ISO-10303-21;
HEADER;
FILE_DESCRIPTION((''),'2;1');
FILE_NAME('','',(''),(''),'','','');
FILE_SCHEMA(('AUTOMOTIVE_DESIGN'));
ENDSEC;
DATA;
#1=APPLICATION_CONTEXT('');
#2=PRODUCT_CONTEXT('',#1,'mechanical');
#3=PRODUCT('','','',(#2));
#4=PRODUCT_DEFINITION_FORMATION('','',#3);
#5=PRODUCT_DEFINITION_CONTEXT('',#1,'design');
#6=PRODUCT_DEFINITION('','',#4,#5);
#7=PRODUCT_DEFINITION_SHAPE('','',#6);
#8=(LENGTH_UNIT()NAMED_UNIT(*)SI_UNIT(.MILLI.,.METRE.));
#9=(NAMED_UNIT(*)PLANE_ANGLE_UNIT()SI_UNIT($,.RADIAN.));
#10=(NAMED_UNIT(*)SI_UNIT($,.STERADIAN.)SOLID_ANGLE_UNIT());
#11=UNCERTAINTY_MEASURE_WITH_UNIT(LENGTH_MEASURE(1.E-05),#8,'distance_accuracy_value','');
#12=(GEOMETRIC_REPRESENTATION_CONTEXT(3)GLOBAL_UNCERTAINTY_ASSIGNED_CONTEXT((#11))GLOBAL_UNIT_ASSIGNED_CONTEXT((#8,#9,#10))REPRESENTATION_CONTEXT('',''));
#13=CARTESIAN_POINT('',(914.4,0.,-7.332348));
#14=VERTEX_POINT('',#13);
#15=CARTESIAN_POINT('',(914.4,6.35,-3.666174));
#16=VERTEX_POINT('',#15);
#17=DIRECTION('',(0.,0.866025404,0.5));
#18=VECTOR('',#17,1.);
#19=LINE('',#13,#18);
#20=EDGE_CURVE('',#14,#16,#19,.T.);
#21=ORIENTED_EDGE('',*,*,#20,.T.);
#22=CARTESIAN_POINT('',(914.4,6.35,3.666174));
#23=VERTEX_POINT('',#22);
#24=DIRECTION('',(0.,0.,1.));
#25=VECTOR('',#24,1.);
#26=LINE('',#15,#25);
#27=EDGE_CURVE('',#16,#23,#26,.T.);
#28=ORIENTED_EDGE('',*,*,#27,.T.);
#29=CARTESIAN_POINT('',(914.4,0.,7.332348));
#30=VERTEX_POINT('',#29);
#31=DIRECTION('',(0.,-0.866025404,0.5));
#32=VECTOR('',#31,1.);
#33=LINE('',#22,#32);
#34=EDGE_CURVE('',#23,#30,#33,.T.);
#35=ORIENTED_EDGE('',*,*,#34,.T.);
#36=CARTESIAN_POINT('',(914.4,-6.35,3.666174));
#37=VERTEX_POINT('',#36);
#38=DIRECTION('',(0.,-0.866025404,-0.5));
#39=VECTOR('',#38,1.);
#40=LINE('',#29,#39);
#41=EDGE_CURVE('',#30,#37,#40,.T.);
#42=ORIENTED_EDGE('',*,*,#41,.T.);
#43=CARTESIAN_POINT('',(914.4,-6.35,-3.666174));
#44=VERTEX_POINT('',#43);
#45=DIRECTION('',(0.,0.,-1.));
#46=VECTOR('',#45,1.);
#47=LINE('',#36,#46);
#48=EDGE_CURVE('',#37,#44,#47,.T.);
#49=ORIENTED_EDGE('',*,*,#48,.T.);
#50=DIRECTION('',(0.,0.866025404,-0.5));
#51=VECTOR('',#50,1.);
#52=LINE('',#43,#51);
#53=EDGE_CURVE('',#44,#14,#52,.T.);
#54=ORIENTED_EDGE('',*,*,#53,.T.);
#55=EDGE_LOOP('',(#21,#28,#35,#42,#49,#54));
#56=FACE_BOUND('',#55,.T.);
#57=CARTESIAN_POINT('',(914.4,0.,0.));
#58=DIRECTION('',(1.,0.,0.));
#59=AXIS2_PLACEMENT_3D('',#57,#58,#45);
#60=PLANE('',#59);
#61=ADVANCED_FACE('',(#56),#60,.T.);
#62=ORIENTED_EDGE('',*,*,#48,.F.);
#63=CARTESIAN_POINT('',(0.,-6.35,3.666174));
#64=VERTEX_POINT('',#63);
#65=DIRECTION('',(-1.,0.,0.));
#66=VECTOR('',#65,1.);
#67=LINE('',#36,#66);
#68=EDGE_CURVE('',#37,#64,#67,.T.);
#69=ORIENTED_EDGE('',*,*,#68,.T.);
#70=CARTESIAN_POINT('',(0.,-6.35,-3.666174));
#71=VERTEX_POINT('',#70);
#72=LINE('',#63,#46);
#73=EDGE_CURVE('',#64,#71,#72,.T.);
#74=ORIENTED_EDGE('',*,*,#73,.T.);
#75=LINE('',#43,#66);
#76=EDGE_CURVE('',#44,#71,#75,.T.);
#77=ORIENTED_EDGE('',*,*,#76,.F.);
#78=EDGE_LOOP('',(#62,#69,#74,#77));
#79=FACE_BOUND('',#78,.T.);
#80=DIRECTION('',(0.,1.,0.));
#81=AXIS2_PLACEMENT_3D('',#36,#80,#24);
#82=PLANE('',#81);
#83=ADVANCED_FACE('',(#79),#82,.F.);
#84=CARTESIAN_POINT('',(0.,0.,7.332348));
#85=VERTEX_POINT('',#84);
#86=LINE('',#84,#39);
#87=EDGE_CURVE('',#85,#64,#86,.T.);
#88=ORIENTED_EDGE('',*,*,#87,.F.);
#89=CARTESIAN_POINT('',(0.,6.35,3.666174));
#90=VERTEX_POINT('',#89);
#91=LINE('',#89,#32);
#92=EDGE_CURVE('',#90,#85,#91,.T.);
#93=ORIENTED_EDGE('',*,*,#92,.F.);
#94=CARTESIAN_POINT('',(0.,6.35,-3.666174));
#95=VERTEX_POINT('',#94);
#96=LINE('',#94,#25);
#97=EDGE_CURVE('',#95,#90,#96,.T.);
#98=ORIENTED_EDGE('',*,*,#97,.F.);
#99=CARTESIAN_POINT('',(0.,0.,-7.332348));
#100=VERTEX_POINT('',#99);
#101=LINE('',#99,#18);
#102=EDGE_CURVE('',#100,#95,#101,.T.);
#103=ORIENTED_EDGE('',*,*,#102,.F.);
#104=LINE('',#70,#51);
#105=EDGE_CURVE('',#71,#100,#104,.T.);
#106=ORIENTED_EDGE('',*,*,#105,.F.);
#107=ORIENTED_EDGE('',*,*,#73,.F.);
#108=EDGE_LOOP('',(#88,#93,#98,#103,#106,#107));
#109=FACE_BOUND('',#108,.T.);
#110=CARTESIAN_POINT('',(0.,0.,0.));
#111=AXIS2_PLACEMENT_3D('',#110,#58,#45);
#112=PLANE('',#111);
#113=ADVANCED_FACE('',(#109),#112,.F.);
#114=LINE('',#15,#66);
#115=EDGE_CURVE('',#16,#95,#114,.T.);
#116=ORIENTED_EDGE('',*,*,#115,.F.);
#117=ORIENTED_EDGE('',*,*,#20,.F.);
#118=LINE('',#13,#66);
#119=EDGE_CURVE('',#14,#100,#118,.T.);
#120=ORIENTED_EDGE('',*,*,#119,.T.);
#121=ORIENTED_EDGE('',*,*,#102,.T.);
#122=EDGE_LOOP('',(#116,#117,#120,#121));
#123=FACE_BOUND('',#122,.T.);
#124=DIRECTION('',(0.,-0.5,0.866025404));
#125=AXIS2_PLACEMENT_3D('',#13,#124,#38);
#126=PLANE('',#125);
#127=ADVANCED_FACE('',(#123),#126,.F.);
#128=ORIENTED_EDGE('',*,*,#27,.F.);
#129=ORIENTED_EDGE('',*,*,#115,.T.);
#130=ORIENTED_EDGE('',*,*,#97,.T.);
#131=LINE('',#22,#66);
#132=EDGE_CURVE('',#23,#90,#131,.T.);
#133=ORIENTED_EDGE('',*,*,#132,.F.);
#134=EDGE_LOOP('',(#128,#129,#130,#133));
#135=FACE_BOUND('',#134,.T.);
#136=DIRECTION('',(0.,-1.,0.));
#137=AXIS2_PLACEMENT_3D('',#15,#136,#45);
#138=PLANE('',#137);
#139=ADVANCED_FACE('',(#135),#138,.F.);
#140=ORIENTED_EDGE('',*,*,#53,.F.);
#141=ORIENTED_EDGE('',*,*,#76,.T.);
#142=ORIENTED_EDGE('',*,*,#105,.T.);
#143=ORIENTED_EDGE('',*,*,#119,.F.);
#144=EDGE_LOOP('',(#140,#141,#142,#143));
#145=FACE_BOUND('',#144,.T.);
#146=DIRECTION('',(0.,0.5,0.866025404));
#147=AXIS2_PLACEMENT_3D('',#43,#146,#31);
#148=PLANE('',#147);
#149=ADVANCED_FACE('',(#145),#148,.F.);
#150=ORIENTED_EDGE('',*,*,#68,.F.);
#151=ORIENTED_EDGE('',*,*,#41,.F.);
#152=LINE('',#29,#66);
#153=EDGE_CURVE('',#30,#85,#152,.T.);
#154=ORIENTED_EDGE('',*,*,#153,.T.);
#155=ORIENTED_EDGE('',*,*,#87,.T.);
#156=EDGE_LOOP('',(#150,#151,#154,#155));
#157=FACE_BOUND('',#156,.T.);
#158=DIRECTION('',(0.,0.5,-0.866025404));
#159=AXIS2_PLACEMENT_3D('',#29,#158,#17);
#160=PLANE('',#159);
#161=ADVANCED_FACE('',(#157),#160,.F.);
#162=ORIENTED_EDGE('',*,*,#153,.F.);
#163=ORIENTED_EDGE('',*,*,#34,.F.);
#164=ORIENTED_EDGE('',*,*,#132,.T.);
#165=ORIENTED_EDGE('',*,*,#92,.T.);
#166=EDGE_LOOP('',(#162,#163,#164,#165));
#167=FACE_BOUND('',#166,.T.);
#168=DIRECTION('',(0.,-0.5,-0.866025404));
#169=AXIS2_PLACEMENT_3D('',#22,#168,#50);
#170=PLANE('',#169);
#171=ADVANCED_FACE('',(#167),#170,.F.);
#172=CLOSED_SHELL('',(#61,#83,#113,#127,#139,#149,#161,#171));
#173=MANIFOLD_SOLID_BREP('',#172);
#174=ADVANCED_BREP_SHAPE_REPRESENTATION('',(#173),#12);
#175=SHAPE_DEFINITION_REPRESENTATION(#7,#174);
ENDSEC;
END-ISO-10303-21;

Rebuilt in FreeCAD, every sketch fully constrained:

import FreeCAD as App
import Part
import Sketcher
from FreeCAD import Vector
Q = App.Units.Quantity

doc = App.newDocument("Part")
body = doc.addObject("PartDesign::Body", "Body")

# Sketch on YZ plane
sketch1 = body.newObject("Sketcher::SketchObject", "Sketch")
sketch1.AttachmentSupport = (doc.getObject("YZ_Plane"), [""])
sketch1.MapMode = "FlatFace"
sketch1.addGeometry([
    Part.LineSegment(Vector(0, -7, 0), Vector(6, -4, 0)),  # 0
    Part.LineSegment(Vector(6, -4, 0), Vector(6, 4, 0)),  # 1
    Part.LineSegment(Vector(6, 4, 0), Vector(0, 7, 0)),  # 2
    Part.LineSegment(Vector(0, 7, 0), Vector(-6, 4, 0)),  # 3
    Part.LineSegment(Vector(-6, 4, 0), Vector(-6, -4, 0)),  # 4
    Part.LineSegment(Vector(-6, -4, 0), Vector(0, -7, 0)),  # 5
], False)
sketch1.addConstraint([
    Sketcher.Constraint("Coincident", 0, 2, 1, 1),
    Sketcher.Constraint("Coincident", 1, 2, 2, 1),
    Sketcher.Constraint("Coincident", 2, 2, 3, 1),
    Sketcher.Constraint("Coincident", 3, 2, 4, 1),
    Sketcher.Constraint("Coincident", 4, 2, 5, 1),
    Sketcher.Constraint("Coincident", 5, 2, 0, 1),
    Sketcher.Constraint("Vertical", 1),
    Sketcher.Constraint("Vertical", 4),
    Sketcher.Constraint("Symmetric", 0, 2, 3, 2, -1, 1),
    Sketcher.Constraint("Symmetric", 2, 2, 5, 2, -1, 1),
    Sketcher.Constraint("PointOnObject", 2, 2, -2),
    Sketcher.Constraint("Parallel", 2, 5),
    Sketcher.Constraint("Horizontal", 1, 2, 3, 2),
    Sketcher.Constraint("Angle", 0, Q("30 deg")),
    Sketcher.Constraint("DistanceX", 3, 2, 1, 2, Q("0.5 in")),
    Sketcher.Constraint("DistanceY", 1, 1, 1, 2, 7.332348),
])
pad1 = body.newObject("PartDesign::Pad", "Pad")
pad1.Profile = sketch1
pad1.Length = Q("36 in")

doc.recompute()
